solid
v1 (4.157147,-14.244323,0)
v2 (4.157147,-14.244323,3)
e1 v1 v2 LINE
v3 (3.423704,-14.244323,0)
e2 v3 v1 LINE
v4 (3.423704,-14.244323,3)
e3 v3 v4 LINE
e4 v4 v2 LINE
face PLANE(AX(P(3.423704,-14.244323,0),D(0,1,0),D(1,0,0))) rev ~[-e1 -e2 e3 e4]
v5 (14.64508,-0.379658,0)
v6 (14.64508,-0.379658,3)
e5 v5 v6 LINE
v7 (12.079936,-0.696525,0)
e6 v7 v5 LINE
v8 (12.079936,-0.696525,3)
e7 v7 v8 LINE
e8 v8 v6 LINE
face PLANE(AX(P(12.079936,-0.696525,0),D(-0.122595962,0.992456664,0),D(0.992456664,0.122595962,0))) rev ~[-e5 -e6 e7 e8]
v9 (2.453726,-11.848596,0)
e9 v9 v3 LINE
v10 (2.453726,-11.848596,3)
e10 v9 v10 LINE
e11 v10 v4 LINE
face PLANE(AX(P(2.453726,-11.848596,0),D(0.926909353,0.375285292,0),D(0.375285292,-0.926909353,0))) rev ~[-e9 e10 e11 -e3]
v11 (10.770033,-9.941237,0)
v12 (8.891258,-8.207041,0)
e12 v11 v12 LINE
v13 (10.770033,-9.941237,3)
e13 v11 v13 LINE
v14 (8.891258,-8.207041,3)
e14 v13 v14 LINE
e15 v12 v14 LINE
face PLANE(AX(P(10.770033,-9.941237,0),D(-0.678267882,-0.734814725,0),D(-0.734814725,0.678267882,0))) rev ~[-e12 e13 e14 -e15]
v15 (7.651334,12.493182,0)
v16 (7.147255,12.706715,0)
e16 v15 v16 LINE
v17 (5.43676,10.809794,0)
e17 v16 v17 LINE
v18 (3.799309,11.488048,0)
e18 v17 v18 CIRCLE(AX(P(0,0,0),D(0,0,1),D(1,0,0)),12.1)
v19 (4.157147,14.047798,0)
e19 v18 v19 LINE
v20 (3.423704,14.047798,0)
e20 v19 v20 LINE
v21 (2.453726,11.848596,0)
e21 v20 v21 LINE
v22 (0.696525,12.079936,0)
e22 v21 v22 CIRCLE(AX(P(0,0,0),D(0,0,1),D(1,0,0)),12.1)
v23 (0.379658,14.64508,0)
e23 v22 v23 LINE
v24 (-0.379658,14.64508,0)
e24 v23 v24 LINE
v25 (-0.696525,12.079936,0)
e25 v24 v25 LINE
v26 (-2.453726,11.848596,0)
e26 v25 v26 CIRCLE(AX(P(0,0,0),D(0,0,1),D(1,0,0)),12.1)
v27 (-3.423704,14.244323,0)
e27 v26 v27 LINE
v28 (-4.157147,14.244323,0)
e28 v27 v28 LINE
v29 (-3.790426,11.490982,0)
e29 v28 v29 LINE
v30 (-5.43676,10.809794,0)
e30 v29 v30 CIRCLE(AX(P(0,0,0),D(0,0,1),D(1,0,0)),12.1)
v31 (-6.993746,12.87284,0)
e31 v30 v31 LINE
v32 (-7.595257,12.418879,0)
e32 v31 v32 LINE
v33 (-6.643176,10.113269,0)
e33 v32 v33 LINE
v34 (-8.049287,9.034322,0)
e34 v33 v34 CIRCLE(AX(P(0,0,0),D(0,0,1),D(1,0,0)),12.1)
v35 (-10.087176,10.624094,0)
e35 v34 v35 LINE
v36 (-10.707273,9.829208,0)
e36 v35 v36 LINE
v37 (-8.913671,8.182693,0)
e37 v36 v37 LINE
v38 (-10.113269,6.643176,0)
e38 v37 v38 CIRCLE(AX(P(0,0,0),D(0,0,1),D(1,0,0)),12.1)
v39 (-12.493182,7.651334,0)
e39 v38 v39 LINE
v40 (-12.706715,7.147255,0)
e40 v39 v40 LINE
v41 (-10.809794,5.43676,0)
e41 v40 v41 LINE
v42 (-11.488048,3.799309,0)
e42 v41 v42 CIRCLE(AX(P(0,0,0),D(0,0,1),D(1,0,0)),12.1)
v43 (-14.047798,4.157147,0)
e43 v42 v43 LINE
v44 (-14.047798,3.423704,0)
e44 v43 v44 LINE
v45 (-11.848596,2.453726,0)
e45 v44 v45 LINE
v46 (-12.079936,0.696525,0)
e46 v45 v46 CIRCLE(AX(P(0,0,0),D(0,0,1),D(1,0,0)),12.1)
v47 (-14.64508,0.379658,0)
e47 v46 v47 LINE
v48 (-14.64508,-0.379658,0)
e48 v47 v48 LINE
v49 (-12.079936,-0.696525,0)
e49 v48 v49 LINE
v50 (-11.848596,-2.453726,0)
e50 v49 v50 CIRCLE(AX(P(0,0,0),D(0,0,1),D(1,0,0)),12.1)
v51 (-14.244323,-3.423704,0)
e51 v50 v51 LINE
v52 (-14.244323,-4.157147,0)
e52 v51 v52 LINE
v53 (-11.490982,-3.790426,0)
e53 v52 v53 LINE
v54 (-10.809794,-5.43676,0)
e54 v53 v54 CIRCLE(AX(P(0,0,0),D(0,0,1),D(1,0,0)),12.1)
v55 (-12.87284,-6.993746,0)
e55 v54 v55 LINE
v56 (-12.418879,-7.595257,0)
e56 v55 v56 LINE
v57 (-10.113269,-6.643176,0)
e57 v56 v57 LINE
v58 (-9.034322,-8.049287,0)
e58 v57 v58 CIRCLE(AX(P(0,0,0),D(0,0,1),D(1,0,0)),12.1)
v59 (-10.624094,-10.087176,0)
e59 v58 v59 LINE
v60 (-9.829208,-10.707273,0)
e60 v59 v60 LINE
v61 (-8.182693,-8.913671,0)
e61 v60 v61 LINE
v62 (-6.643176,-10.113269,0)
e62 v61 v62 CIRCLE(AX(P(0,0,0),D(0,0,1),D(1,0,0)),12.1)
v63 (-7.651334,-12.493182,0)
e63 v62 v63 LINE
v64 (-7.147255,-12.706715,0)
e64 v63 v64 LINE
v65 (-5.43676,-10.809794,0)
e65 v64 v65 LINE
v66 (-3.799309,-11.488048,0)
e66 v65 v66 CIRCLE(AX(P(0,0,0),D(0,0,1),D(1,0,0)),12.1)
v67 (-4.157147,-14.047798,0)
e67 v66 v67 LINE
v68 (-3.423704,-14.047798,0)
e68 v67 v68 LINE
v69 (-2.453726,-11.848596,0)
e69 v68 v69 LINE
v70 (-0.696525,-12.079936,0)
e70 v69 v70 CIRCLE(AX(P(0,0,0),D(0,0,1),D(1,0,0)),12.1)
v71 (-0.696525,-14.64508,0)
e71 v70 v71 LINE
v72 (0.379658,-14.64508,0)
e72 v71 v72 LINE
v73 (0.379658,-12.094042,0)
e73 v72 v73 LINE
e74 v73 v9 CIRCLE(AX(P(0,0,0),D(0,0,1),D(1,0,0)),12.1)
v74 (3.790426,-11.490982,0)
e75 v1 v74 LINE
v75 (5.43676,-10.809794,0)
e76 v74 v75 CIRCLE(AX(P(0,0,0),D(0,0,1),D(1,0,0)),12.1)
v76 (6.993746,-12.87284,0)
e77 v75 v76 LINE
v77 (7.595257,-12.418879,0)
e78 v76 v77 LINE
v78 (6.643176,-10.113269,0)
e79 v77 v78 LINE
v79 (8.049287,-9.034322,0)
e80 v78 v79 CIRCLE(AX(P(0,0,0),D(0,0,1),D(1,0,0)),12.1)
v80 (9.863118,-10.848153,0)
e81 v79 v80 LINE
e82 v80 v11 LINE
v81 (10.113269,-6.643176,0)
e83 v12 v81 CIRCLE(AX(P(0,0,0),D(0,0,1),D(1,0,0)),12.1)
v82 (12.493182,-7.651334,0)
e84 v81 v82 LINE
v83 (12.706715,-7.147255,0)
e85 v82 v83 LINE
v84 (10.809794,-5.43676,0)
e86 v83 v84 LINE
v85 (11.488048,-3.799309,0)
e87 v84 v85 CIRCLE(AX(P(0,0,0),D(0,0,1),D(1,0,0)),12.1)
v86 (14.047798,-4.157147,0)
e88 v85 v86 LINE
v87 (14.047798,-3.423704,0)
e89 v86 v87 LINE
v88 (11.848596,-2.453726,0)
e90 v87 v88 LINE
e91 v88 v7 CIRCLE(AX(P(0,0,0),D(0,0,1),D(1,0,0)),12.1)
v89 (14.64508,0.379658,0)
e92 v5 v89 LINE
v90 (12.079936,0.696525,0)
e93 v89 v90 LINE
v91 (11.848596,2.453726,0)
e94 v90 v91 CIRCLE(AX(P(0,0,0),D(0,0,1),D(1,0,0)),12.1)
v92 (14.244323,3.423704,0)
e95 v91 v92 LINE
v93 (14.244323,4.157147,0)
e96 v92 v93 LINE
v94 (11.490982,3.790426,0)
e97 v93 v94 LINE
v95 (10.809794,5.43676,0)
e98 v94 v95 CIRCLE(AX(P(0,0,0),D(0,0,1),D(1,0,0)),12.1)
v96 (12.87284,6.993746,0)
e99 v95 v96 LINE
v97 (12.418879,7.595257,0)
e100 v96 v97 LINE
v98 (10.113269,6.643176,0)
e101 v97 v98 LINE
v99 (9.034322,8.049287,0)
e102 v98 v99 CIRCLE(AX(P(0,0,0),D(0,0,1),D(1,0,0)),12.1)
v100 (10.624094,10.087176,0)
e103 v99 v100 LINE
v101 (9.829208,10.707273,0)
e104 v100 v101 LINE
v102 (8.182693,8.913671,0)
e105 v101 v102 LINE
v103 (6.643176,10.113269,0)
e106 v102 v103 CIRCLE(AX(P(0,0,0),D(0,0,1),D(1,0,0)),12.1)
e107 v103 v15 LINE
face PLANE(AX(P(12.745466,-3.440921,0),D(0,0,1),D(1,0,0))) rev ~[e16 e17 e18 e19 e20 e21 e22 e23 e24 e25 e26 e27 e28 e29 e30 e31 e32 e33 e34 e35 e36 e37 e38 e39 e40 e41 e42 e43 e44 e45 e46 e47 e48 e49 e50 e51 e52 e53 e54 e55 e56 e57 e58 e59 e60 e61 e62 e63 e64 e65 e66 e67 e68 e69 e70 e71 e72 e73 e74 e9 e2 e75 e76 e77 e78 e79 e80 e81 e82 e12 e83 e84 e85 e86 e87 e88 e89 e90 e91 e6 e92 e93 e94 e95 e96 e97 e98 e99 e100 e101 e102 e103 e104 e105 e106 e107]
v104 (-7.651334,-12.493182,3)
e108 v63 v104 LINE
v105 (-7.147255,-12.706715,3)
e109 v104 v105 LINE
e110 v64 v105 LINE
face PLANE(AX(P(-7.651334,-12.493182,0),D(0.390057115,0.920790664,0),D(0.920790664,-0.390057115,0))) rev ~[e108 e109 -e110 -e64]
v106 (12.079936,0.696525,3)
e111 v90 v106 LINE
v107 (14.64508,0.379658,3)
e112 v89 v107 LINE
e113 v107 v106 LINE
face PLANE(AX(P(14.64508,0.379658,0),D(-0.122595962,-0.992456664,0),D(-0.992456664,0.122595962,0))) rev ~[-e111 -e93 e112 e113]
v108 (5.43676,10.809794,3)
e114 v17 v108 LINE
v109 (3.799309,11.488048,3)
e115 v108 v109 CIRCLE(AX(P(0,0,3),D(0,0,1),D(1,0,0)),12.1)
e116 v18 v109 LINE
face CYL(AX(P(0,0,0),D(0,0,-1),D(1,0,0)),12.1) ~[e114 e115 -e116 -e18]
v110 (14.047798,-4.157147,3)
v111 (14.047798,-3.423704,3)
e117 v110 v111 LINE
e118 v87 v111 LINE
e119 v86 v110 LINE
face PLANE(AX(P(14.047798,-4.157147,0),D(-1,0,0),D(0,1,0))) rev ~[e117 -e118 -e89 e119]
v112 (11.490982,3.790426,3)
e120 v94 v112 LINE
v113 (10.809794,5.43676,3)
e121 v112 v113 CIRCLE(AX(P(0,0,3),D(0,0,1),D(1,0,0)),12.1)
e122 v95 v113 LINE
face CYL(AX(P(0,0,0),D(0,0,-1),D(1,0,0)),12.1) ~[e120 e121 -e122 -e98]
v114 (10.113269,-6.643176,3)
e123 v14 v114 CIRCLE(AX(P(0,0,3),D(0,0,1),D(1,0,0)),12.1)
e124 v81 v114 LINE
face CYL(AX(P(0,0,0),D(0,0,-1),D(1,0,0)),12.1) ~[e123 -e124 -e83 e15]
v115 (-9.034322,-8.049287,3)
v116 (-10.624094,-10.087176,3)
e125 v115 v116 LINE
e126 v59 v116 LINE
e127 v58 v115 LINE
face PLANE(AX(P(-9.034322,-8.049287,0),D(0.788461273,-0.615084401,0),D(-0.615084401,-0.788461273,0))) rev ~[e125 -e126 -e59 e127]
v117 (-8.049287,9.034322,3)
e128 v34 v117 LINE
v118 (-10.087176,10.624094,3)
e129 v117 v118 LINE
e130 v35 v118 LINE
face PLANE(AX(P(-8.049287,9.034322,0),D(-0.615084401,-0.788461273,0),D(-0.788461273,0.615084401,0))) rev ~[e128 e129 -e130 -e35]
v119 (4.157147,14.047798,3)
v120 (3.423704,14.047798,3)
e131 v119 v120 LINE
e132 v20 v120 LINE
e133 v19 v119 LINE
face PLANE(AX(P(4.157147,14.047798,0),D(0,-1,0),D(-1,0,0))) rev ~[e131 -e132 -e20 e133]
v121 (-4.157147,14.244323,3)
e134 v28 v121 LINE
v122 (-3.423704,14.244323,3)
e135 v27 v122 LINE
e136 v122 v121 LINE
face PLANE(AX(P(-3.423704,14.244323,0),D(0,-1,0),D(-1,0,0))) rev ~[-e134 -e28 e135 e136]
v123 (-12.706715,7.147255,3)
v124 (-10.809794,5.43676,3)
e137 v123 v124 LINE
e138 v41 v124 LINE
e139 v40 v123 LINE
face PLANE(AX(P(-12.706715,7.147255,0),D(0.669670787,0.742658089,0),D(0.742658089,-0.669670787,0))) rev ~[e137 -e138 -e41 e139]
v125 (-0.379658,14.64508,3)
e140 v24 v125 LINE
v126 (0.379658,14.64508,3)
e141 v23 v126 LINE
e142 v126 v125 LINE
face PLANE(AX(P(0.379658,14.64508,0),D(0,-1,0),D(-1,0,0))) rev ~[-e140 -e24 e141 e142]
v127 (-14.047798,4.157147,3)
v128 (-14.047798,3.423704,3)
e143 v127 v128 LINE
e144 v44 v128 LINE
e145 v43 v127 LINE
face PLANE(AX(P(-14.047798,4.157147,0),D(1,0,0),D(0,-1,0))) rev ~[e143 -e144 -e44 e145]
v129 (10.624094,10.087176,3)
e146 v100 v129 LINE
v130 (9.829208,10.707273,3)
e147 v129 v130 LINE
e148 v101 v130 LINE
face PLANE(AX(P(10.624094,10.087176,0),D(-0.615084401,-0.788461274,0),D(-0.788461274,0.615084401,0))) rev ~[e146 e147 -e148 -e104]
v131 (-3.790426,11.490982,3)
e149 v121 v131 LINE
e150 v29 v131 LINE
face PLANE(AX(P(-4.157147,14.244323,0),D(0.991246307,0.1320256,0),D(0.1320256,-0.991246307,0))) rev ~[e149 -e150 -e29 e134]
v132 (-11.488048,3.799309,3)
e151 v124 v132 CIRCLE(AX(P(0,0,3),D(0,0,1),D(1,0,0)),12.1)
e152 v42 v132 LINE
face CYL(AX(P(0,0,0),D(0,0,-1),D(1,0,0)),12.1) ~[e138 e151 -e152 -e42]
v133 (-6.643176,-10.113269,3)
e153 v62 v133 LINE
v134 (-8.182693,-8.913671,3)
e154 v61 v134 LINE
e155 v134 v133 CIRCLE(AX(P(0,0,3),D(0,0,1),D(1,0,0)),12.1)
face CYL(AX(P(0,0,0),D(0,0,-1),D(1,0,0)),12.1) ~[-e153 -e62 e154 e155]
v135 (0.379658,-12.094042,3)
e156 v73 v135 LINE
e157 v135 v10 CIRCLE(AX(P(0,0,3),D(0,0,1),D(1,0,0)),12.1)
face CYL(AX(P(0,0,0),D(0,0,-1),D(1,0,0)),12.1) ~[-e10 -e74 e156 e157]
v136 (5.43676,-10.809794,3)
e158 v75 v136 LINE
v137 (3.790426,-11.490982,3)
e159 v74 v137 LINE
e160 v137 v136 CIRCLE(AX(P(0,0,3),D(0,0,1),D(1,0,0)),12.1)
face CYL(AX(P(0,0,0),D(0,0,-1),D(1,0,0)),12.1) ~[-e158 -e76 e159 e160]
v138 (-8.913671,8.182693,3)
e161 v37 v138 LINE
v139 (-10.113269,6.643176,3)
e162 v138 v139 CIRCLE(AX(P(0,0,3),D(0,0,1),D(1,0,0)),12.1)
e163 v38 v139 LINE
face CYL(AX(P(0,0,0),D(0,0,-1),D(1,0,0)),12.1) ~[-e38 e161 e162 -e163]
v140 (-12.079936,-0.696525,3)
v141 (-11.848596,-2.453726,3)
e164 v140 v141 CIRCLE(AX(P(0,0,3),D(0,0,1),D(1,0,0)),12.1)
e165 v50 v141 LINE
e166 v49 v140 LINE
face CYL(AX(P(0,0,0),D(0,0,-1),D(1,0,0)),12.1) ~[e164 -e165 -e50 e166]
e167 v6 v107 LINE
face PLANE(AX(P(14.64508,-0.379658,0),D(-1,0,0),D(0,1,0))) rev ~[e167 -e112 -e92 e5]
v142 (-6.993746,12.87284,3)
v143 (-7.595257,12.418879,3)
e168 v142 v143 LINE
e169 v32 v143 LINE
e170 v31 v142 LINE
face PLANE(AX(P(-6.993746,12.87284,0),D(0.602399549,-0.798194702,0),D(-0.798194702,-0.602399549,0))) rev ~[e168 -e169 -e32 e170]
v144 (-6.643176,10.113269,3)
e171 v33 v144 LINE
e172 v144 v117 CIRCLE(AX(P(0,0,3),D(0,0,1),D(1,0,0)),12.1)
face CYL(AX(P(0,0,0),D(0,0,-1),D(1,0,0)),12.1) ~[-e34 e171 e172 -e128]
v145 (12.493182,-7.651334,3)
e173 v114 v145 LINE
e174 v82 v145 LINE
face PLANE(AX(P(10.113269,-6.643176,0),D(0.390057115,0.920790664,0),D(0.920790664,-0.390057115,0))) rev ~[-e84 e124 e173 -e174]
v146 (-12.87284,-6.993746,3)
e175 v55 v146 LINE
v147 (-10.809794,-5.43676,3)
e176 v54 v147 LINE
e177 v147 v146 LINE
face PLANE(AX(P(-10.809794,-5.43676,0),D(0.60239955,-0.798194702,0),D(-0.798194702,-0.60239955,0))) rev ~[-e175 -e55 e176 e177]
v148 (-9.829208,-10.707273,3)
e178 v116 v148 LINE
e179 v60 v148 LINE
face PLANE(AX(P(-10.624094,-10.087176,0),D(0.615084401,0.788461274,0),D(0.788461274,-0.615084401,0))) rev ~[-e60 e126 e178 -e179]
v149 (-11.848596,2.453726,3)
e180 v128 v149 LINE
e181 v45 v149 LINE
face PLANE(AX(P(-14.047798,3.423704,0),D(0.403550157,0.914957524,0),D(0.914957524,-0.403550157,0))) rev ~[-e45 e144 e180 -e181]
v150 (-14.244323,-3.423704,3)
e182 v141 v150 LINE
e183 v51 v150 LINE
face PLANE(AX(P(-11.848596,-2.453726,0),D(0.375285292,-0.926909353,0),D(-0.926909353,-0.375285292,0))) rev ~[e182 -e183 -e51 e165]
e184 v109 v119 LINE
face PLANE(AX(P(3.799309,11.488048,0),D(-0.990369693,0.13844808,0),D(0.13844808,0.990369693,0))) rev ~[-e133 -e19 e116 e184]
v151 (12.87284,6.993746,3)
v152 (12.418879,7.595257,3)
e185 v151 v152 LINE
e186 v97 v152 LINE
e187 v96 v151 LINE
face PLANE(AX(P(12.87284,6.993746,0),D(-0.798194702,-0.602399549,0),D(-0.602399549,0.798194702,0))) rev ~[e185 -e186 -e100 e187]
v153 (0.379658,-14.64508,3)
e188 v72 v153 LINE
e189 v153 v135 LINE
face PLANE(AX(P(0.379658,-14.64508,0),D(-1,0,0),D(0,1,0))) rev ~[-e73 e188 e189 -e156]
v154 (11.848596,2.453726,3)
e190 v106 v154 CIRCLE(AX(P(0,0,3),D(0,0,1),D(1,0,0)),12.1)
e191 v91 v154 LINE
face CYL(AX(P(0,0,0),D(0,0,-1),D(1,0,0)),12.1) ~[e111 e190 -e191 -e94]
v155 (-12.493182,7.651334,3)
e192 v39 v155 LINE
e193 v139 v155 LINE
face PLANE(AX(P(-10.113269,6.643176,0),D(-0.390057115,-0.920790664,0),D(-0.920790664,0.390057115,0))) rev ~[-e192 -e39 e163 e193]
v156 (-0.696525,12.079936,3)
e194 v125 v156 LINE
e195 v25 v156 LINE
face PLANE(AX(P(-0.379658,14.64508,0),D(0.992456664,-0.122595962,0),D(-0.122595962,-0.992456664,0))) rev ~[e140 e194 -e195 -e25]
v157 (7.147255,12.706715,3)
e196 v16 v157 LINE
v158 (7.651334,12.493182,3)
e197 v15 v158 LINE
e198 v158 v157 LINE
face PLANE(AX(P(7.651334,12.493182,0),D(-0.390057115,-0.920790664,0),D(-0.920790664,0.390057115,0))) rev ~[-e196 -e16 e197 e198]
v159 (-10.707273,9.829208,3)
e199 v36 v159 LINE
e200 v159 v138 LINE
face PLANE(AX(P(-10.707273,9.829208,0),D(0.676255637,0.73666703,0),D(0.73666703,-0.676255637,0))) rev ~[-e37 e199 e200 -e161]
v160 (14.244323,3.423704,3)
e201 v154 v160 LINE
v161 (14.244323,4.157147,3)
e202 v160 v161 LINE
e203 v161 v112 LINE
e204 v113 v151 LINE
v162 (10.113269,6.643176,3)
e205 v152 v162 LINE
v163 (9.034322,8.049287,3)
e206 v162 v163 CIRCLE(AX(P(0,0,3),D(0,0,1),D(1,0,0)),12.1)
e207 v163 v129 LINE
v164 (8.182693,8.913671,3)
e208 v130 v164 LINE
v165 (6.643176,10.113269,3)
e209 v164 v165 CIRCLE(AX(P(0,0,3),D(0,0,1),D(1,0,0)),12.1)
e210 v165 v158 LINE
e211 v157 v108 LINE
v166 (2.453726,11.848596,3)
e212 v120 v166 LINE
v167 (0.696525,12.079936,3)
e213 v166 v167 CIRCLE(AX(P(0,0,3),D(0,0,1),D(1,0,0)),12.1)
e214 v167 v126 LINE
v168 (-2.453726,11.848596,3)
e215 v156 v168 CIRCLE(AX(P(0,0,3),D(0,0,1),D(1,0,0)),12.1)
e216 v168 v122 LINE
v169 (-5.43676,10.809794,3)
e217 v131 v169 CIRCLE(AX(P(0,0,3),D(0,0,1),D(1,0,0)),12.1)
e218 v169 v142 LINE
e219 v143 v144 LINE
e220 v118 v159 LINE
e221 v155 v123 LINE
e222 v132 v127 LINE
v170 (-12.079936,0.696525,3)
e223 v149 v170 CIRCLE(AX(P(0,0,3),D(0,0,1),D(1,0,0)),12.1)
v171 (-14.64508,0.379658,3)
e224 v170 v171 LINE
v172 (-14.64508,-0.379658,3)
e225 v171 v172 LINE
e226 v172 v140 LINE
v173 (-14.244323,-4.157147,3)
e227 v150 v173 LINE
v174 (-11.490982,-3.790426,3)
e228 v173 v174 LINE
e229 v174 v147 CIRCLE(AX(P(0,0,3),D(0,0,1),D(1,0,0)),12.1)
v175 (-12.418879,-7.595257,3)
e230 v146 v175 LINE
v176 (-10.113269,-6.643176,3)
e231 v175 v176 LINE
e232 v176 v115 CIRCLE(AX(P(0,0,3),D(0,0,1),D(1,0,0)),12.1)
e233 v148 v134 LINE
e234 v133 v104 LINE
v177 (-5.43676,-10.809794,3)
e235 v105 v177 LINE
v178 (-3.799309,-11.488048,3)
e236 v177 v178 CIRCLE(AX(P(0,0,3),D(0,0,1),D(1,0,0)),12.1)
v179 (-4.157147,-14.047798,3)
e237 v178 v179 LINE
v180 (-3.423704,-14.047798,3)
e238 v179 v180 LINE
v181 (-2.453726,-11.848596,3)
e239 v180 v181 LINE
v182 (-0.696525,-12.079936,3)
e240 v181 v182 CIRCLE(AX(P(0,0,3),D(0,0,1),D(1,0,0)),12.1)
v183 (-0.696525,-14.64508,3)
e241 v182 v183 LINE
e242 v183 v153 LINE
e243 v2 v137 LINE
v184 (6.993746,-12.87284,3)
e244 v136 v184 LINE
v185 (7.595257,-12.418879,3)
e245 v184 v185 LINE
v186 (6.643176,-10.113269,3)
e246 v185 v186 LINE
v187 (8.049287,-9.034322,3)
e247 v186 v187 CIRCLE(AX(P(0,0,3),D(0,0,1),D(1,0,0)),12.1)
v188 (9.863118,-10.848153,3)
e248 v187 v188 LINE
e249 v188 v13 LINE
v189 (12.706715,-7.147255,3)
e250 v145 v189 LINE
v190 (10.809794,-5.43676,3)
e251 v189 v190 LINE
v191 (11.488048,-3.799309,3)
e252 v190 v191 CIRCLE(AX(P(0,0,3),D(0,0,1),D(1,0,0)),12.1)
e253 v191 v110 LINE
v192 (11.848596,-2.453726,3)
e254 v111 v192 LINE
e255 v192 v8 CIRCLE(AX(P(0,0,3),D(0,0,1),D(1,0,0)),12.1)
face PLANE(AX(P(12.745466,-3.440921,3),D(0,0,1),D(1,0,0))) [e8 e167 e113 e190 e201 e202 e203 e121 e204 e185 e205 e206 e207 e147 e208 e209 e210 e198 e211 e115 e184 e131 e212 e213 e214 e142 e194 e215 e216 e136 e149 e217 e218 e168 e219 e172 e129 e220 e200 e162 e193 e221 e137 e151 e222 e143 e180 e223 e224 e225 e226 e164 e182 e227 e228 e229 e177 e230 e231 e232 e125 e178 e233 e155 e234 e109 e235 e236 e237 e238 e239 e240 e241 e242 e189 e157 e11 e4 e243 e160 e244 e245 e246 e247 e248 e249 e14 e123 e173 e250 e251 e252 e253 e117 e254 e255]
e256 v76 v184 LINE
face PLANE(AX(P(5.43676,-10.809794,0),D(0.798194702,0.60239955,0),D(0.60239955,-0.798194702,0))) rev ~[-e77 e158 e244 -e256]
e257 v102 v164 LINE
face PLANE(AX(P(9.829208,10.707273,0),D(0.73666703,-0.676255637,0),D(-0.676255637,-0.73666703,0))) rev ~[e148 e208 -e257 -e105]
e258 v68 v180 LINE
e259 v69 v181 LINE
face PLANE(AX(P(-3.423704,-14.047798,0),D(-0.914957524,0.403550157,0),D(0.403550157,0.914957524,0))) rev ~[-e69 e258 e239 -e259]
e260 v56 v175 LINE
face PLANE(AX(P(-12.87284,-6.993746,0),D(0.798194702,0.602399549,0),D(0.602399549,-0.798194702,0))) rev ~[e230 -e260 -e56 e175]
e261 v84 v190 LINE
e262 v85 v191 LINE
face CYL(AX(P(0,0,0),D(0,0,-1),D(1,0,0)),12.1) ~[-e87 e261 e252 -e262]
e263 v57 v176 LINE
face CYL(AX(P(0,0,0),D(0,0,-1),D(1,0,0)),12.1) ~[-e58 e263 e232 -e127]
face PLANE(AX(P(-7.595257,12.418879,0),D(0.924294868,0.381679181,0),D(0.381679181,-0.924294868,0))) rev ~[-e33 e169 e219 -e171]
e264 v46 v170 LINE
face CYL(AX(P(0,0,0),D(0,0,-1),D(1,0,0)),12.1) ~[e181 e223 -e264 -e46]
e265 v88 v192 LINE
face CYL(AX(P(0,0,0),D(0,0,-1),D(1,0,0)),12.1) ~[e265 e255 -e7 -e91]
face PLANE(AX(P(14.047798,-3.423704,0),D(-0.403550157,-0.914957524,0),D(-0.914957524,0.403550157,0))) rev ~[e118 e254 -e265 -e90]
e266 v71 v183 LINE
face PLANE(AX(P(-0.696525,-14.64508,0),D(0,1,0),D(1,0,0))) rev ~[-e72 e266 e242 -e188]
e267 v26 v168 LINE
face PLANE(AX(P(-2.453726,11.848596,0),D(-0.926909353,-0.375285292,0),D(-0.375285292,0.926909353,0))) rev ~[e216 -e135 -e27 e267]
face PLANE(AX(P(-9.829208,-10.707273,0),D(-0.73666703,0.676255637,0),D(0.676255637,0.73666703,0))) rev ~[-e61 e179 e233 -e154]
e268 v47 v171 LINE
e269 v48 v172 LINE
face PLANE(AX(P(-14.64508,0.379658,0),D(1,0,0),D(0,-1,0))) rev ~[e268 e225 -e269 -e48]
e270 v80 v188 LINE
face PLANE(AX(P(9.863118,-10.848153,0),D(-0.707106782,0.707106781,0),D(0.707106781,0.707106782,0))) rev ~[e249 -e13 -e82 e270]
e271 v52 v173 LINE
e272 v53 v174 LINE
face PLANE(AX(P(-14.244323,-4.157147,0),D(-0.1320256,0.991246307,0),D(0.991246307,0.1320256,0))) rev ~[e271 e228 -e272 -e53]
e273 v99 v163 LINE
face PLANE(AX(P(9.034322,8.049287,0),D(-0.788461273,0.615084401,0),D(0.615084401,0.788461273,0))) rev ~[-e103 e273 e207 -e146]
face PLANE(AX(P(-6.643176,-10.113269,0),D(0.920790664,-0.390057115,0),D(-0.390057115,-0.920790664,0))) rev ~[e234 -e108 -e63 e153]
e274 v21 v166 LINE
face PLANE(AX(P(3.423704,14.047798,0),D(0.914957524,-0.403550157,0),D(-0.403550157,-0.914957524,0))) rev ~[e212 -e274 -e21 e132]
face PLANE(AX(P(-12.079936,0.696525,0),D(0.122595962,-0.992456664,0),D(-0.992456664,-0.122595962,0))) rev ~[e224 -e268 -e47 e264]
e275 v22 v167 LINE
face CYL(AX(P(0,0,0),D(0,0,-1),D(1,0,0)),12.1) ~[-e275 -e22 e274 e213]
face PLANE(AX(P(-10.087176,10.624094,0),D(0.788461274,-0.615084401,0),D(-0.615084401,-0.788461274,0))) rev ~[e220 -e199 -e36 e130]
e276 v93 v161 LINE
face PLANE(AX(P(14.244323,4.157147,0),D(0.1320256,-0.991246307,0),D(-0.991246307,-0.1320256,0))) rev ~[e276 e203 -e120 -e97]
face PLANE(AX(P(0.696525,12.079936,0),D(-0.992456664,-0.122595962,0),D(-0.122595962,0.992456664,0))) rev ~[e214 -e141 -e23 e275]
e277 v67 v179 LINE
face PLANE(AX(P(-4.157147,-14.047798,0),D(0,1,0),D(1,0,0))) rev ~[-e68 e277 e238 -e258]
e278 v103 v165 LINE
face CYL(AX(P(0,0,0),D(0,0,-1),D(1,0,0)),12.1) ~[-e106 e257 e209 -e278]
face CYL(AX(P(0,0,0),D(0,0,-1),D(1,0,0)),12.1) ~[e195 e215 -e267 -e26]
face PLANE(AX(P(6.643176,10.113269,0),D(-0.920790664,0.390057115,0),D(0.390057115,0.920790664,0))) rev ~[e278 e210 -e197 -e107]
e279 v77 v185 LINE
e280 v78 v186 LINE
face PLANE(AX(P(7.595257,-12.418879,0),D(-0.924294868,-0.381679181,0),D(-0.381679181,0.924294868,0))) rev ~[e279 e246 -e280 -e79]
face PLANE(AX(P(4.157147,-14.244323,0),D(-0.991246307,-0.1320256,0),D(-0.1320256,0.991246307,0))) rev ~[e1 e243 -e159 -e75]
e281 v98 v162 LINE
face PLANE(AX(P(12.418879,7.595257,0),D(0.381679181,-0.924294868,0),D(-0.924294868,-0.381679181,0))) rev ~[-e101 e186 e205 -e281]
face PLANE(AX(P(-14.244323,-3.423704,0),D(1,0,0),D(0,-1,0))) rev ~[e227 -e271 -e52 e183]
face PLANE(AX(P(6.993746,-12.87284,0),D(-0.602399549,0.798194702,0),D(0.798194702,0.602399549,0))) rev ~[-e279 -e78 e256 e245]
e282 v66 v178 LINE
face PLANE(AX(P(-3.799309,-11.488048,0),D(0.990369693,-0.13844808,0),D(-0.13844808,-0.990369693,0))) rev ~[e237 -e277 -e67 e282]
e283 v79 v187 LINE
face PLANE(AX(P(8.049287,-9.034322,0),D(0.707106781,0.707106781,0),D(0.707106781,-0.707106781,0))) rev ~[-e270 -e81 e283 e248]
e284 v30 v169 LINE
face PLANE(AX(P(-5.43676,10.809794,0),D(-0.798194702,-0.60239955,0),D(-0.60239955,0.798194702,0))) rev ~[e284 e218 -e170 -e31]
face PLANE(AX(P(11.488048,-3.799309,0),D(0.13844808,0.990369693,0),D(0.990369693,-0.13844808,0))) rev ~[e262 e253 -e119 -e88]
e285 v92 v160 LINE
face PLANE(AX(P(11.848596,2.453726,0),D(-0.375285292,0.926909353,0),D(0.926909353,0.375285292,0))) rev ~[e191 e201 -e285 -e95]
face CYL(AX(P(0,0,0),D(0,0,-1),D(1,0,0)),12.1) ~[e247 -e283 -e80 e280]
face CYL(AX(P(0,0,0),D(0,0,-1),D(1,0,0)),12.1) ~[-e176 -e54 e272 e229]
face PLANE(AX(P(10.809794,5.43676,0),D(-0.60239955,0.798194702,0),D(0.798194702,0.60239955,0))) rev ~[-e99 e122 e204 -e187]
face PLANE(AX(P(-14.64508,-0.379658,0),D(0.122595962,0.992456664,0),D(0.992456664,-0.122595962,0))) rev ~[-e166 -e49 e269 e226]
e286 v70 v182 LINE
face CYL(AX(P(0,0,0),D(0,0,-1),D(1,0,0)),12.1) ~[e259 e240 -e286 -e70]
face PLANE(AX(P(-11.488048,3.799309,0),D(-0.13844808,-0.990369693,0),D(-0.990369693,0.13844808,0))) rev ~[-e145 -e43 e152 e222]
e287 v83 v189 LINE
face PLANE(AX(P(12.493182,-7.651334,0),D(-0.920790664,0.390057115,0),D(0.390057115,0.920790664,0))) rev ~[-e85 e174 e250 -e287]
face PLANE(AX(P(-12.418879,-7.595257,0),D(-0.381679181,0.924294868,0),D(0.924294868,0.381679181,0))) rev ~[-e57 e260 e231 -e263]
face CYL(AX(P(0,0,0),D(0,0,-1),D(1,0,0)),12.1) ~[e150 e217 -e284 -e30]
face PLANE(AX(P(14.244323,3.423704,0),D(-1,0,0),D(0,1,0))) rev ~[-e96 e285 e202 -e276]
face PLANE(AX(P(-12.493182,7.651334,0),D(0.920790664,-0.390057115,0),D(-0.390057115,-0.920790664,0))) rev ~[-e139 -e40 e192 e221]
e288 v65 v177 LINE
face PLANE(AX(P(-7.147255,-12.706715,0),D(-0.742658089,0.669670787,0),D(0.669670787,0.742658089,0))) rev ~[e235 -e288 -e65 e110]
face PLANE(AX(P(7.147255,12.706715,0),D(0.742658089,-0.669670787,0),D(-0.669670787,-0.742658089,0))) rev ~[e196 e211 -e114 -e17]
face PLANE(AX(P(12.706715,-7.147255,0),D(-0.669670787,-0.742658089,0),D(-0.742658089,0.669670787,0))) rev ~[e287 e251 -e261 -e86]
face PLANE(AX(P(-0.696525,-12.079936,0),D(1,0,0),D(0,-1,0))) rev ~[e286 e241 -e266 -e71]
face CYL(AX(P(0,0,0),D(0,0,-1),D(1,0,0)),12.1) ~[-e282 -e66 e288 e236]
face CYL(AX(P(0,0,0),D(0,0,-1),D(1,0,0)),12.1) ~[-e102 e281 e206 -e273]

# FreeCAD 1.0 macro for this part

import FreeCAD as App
import Part
import Sketcher
from FreeCAD import Vector
Q = App.Units.Quantity


def add_polygon(sketch, points):
    """Adds a closed chain of lines whose ends are joined by coincident constraints."""
    first, n = sketch.GeometryCount, len(points)
    for a, b in zip(points, points[1:] + points[:1]):
        sketch.addGeometry(Part.LineSegment(App.Vector(*a, 0), App.Vector(*b, 0)), False)
    for i in range(n):
        sketch.addConstraint(Sketcher.Constraint("Coincident", first + i, 2, first + (i + 1) % n, 1))

doc = App.newDocument("Part")
params = doc.addObject("Spreadsheet::Sheet", "Params")
for row, (alias, value) in enumerate([
    ("sketch1_diameter", "24.2 mm"),
    ("pad1_length", "3 mm"),
    ("pad2_length", "3 mm"),
    ("pad3_length", "3 mm"),
    ("pad4_length", "3 mm"),
    ("pad5_length", "3 mm"),
    ("pad6_length", "3 mm"),
    ("pad7_length", "3 mm"),
    ("pad8_length", "3 mm"),
    ("pad9_length", "3 mm"),
    ("pad10_length", "3 mm"),
    ("pad11_length", "3 mm"),
    ("pad12_length", "3 mm"),
    ("pad13_length", "3 mm"),
    ("pad14_length", "3 mm"),
    ("pad15_length", "3 mm"),
    ("pad16_length", "3 mm"),
    ("pad17_length", "3 mm"),
    ("pad18_length", "3 mm"),
    ("pad19_length", "3 mm"),
    ("pad20_length", "3 mm"),
    ("pad21_length", "3 mm"),
    ("pad22_length", "3 mm"),
    ("pad23_length", "3 mm"),
    ("pad24_length", "3 mm"),
    ("pad25_length", "3 mm"),
], start=1):
    params.set(f"A{row}", alias)
    params.set(f"B{row}", "=" + value)
    params.setAlias(f"B{row}", alias)

body = doc.addObject("PartDesign::Body", "Body")

# Sketch on XY plane
sketch1 = body.newObject("Sketcher::SketchObject", "Sketch")
sketch1.AttachmentSupport = (doc.getObject("XY_Plane"), [""])
sketch1.MapMode = "FlatFace"
sketch1.addGeometry(Part.Circle(Vector(0, 0, 0), Vector(0, 0, 1), 12), False)
sketch1.addConstraint(Sketcher.Constraint("Coincident", 0, 3, -1, 1))
sketch1.addConstraint(Sketcher.Constraint("Diameter", 0, 24.2))
sketch1.setExpression("Constraints[1]", "Params.sketch1_diameter")
pad1 = body.newObject("PartDesign::Pad", "Pad")
pad1.Profile = sketch1
pad1.setExpression("Length", "Params.pad1_length")

# Sketch on XY plane
sketch2 = body.newObject("Sketcher::SketchObject", "Sketch001")
sketch2.AttachmentSupport = (doc.getObject("XY_Plane"), [""])
sketch2.MapMode = "FlatFace"
add_polygon(sketch2, [(12.1, -0.7), (14.6, -0.4), (14.6, 0.4), (12.1, 0.7)])  # lines 0-3
sketch2.addConstraint(Sketcher.Constraint("Vertical", 1))
sketch2.addConstraint(Sketcher.Constraint("Vertical", 3))
sketch2.addConstraint(Sketcher.Constraint("Equal", 0, 2))
sketch2.addConstraint(Sketcher.Constraint("DistanceY", 3, 2, 3, 1, 1.393049))
sketch2.addConstraint(Sketcher.Constraint("Distance", 0, 2.584641))
sketch2.addConstraint(Sketcher.Constraint("DistanceY", 1, 1, 1, 2, 0.759316))
sketch2.addConstraint(Sketcher.Constraint("DistanceX", -1, 1, 0, 2, 14.64508))
sketch2.addConstraint(Sketcher.Constraint("DistanceY", 0, 2, -1, 1, 0.379658))
pad2 = body.newObject("PartDesign::Pad", "Pad001")
pad2.Profile = sketch2
pad2.setExpression("Length", "Params.pad2_length")

# Sketch on XY plane
sketch3 = body.newObject("Sketcher::SketchObject", "Sketch002")
sketch3.AttachmentSupport = (doc.getObject("XY_Plane"), [""])
sketch3.MapMode = "FlatFace"
add_polygon(sketch3, [(11.8, 2.5), (14.2, 3.4), (14.2, 4.2), (11.5, 3.8)])  # lines 0-3
sketch3.addConstraint(Sketcher.Constraint("Vertical", 1))
sketch3.addConstraint(Sketcher.Constraint("DistanceY", 3, 2, 2, 2, 1.336699))
sketch3.addConstraint(Sketcher.Constraint("Distance", 0, 2.584641))
sketch3.addConstraint(Sketcher.Constraint("Distance", 3, 1.38371))
sketch3.addConstraint(Sketcher.Constraint("DistanceY", 1, 1, 1, 2, 0.733443))
sketch3.addConstraint(Sketcher.Constraint("DistanceX", 2, 2, 0, 2, 2.753341))
sketch3.addConstraint(Sketcher.Constraint("DistanceX", -1, 1, 0, 2, 14.244323))
sketch3.addConstraint(Sketcher.Constraint("DistanceY", -1, 1, 0, 2, 3.423704))
pad3 = body.newObject("PartDesign::Pad", "Pad002")
pad3.Profile = sketch3
pad3.setExpression("Length", "Params.pad3_length")

# Sketch on XY plane
sketch4 = body.newObject("Sketcher::SketchObject", "Sketch003")
sketch4.AttachmentSupport = (doc.getObject("XY_Plane"), [""])
sketch4.MapMode = "FlatFace"
add_polygon(sketch4, [(10.8, 5.4), (12.9, 7), (12.4, 7.6), (10.1, 6.6)])  # lines 0-3
sketch4.addConstraint(Sketcher.Constraint("Perpendicular", 0, 1))
sketch4.addConstraint(Sketcher.Constraint("Angle", 3, Q("-60 deg")))
sketch4.addConstraint(Sketcher.Constraint("Distance", 0, 2.584641))
sketch4.addConstraint(Sketcher.Constraint("Distance", 1, 0.753589))
sketch4.addConstraint(Sketcher.Constraint("Distance", 3, 1.393049))
sketch4.addConstraint(Sketcher.Constraint("DistanceX", -1, 1, 0, 2, 12.87284))
sketch4.addConstraint(Sketcher.Constraint("DistanceX", -1, 1, 1, 2, 12.418879))
sketch4.addConstraint(Sketcher.Constraint("DistanceY", -1, 1, 3, 2, 5.43676))
pad4 = body.newObject("PartDesign::Pad", "Pad003")
pad4.Profile = sketch4
pad4.setExpression("Length", "Params.pad4_length")

# Sketch on XY plane
sketch5 = body.newObject("Sketcher::SketchObject", "Sketch004")
sketch5.AttachmentSupport = (doc.getObject("XY_Plane"), [""])
sketch5.MapMode = "FlatFace"
add_polygon(sketch5, [(9, 8), (10.6, 10.1), (9.8, 10.7), (8.2, 8.9)])  # lines 0-3
sketch5.addConstraint(Sketcher.Constraint("Perpendicular", 0, 1))
sketch5.addConstraint(Sketcher.Constraint("DistanceY", 2, 2, 1, 2, 1.793602))
sketch5.addConstraint(Sketcher.Constraint("DistanceX", 2, 2, 0, 2, 2.441401))
sketch5.addConstraint(Sketcher.Constraint("Distance", 0, 2.584641))
sketch5.addConstraint(Sketcher.Constraint("Distance", 1, 1.008148))
sketch5.addConstraint(Sketcher.Constraint("DistanceX", -1, 1, 1, 2, 9.829208))
sketch5.addConstraint(Sketcher.Constraint("DistanceY", -1, 1, 2, 2, 8.913671))
sketch5.addConstraint(Sketcher.Constraint("DistanceX", 2, 2, 3, 2, 0.851629))
pad5 = body.newObject("PartDesign::Pad", "Pad004")
pad5.Profile = sketch5
pad5.setExpression("Length", "Params.pad5_length")

# Sketch on XY plane
sketch6 = body.newObject("Sketcher::SketchObject", "Sketch005")
sketch6.AttachmentSupport = (doc.getObject("XY_Plane"), [""])
sketch6.MapMode = "FlatFace"
add_polygon(sketch6, [(6.6, 10.1), (7.7, 12.5), (7.1, 12.7), (5.4, 10.8)])  # lines 0-3
sketch6.addConstraint(Sketcher.Constraint("Perpendicular", 0, 1))
sketch6.addConstraint(Sketcher.Constraint("Angle", 3, Q("-30 deg")))
sketch6.addConstraint(Sketcher.Constraint("Distance", 0, 2.584641))
sketch6.addConstraint(Sketcher.Constraint("Distance", 1, 0.547441))
sketch6.addConstraint(Sketcher.Constraint("Distance", 3, 1.393049))
sketch6.addConstraint(Sketcher.Constraint("DistanceY", -1, 1, 0, 2, 12.493182))
sketch6.addConstraint(Sketcher.Constraint("DistanceX", -1, 1, 2, 2, 5.43676))
sketch6.addConstraint(Sketcher.Constraint("DistanceY", -1, 1, 3, 2, 10.113269))
pad6 = body.newObject("PartDesign::Pad", "Pad005")
pad6.Profile = sketch6
pad6.setExpression("Length", "Params.pad6_length")

# Sketch on XY plane
sketch7 = body.newObject("Sketcher::SketchObject", "Sketch006")
sketch7.AttachmentSupport = (doc.getObject("XY_Plane"), [""])
sketch7.MapMode = "FlatFace"
add_polygon(sketch7, [(3.8, 11.5), (4.2, 14), (3.4, 14), (2.5, 11.8)])  # lines 0-3
sketch7.addConstraint(Sketcher.Constraint("Horizontal", 1))
sketch7.addConstraint(Sketcher.Constraint("Angle", 3, Q("-15 deg")))
sketch7.addConstraint(Sketcher.Constraint("DistanceY", 2, 2, 1, 2, 2.199202))
sketch7.addConstraint(Sketcher.Constraint("Distance", 0, 2.584641))
sketch7.addConstraint(Sketcher.Constraint("Distance", 2, 2.403611))
sketch7.addConstraint(Sketcher.Constraint("Distance", 3, 1.393049))
sketch7.addConstraint(Sketcher.Constraint("DistanceX", -1, 1, 3, 2, 3.799309))
sketch7.addConstraint(Sketcher.Constraint("DistanceY", -1, 1, 3, 2, 11.488048))
pad7 = body.newObject("PartDesign::Pad", "Pad006")
pad7.Profile = sketch7
pad7.setExpression("Length", "Params.pad7_length")

# Sketch on XY plane
sketch8 = body.newObject("Sketcher::SketchObject", "Sketch007")
sketch8.AttachmentSupport = (doc.getObject("XY_Plane"), [""])
sketch8.MapMode = "FlatFace"
add_polygon(sketch8, [(0.7, 12.1), (0.4, 14.6), (-0.4, 14.6), (-0.7, 12.1)])  # lines 0-3
sketch8.addConstraint(Sketcher.Constraint("Horizontal", 1))
sketch8.addConstraint(Sketcher.Constraint("Horizontal", 3))
sketch8.addConstraint(Sketcher.Constraint("Equal", 0, 2))
sketch8.addConstraint(Sketcher.Constraint("DistanceX", 3, 1, 3, 2, 1.393049))
sketch8.addConstraint(Sketcher.Constraint("Distance", 0, 2.584641))
sketch8.addConstraint(Sketcher.Constraint("DistanceX", 1, 2, 1, 1, 0.759316))
sketch8.addConstraint(Sketcher.Constraint("DistanceX", -1, 1, 0, 2, 0.379658))
sketch8.addConstraint(Sketcher.Constraint("DistanceY", -1, 1, 0, 2, 14.64508))
pad8 = body.newObject("PartDesign::Pad", "Pad007")
pad8.Profile = sketch8
pad8.setExpression("Length", "Params.pad8_length")

# Sketch on XY plane
sketch9 = body.newObject("Sketcher::SketchObject", "Sketch008")
sketch9.AttachmentSupport = (doc.getObject("XY_Plane"), [""])
sketch9.MapMode = "FlatFace"
add_polygon(sketch9, [(-2.5, 11.8), (-3.4, 14.2), (-4.2, 14.2), (-3.8, 11.5)])  # lines 0-3
sketch9.addConstraint(Sketcher.Constraint("Horizontal", 1))
sketch9.addConstraint(Sketcher.Constraint("DistanceX", 2, 2, 3, 2, 1.336699))
sketch9.addConstraint(Sketcher.Constraint("Distance", 0, 2.584641))
sketch9.addConstraint(Sketcher.Constraint("Distance", 3, 1.38371))
sketch9.addConstraint(Sketcher.Constraint("DistanceX", 1, 2, 1, 1, 0.733443))
sketch9.addConstraint(Sketcher.Constraint("DistanceX", 2, 2, 0, 2, 0.366722))
sketch9.addConstraint(Sketcher.Constraint("DistanceX", 0, 2, -1, 1, 3.423704))
sketch9.addConstraint(Sketcher.Constraint("DistanceY", -1, 1, 0, 2, 14.244323))
pad9 = body.newObject("PartDesign::Pad", "Pad008")
pad9.Profile = sketch9
pad9.setExpression("Length", "Params.pad9_length")

# Sketch on XY plane
sketch10 = body.newObject("Sketcher::SketchObject", "Sketch009")
sketch10.AttachmentSupport = (doc.getObject("XY_Plane"), [""])
sketch10.MapMode = "FlatFace"
add_polygon(sketch10, [(-5.4, 10.8), (-7, 12.9), (-7.6, 12.4), (-6.6, 10.1)])  # lines 0-3
sketch10.addConstraint(Sketcher.Constraint("Perpendicular", 0, 1))
sketch10.addConstraint(Sketcher.Constraint("Angle", 3, Q("30 deg")))
sketch10.addConstraint(Sketcher.Constraint("Distance", 0, 2.584641))
sketch10.addConstraint(Sketcher.Constraint("Distance", 1, 0.753589))
sketch10.addConstraint(Sketcher.Constraint("Distance", 3, 1.393049))
sketch10.addConstraint(Sketcher.Constraint("DistanceY", -1, 1, 0, 2, 12.87284))
sketch10.addConstraint(Sketcher.Constraint("DistanceY", -1, 1, 1, 2, 12.418879))
sketch10.addConstraint(Sketcher.Constraint("DistanceX", 3, 2, -1, 1, 5.43676))
pad10 = body.newObject("PartDesign::Pad", "Pad009")
pad10.Profile = sketch10
pad10.setExpression("Length", "Params.pad10_length")

# Sketch on XY plane
sketch11 = body.newObject("Sketcher::SketchObject", "Sketch010")
sketch11.AttachmentSupport = (doc.getObject("XY_Plane"), [""])
sketch11.MapMode = "FlatFace"
add_polygon(sketch11, [(-8, 9), (-10.1, 10.6), (-10.7, 9.8), (-8.9, 8.2)])  # lines 0-3
sketch11.addConstraint(Sketcher.Constraint("Perpendicular", 0, 1))
sketch11.addConstraint(Sketcher.Constraint("DistanceX", 1, 2, 2, 2, 1.793602))
sketch11.addConstraint(Sketcher.Constraint("DistanceY", 2, 2, 0, 2, 2.441401))
sketch11.addConstraint(Sketcher.Constraint("Distance", 0, 2.584641))
sketch11.addConstraint(Sketcher.Constraint("Distance", 1, 1.008148))
sketch11.addConstraint(Sketcher.Constraint("DistanceY", -1, 1, 1, 2, 9.829208))
sketch11.addConstraint(Sketcher.Constraint("DistanceX", 2, 2, -1, 1, 8.913671))
sketch11.addConstraint(Sketcher.Constraint("DistanceY", 2, 2, 3, 2, 0.851629))
pad11 = body.newObject("PartDesign::Pad", "Pad010")
pad11.Profile = sketch11
pad11.setExpression("Length", "Params.pad11_length")

# Sketch on XY plane
sketch12 = body.newObject("Sketcher::SketchObject", "Sketch011")
sketch12.AttachmentSupport = (doc.getObject("XY_Plane"), [""])
sketch12.MapMode = "FlatFace"
add_polygon(sketch12, [(-10.1, 6.6), (-12.5, 7.7), (-12.7, 7.1), (-10.8, 5.4)])  # lines 0-3
sketch12.addConstraint(Sketcher.Constraint("Perpendicular", 0, 1))
sketch12.addConstraint(Sketcher.Constraint("Angle", 3, Q("60 deg")))
sketch12.addConstraint(Sketcher.Constraint("Distance", 0, 2.584641))
sketch12.addConstraint(Sketcher.Constraint("Distance", 1, 0.547441))
sketch12.addConstraint(Sketcher.Constraint("Distance", 3, 1.393049))
sketch12.addConstraint(Sketcher.Constraint("DistanceX", 0, 2, -1, 1, 12.493182))
sketch12.addConstraint(Sketcher.Constraint("DistanceY", -1, 1, 2, 2, 5.43676))
sketch12.addConstraint(Sketcher.Constraint("DistanceX", 3, 2, -1, 1, 10.113269))
pad12 = body.newObject("PartDesign::Pad", "Pad011")
pad12.Profile = sketch12
pad12.setExpression("Length", "Params.pad12_length")

# Sketch on XY plane
sketch13 = body.newObject("Sketcher::SketchObject", "Sketch012")
sketch13.AttachmentSupport = (doc.getObject("XY_Plane"), [""])
sketch13.MapMode = "FlatFace"
add_polygon(sketch13, [(-11.5, 3.8), (-14, 4.2), (-14, 3.4), (-11.8, 2.5)])  # lines 0-3
sketch13.addConstraint(Sketcher.Constraint("Vertical", 1))
sketch13.addConstraint(Sketcher.Constraint("Angle", 3, Q("75 deg")))
sketch13.addConstraint(Sketcher.Constraint("DistanceX", 1, 2, 2, 2, 2.199202))
sketch13.addConstraint(Sketcher.Constraint("Distance", 0, 2.584641))
sketch13.addConstraint(Sketcher.Constraint("Distance", 2, 2.403611))
sketch13.addConstraint(Sketcher.Constraint("Distance", 3, 1.393049))
sketch13.addConstraint(Sketcher.Constraint("DistanceX", 3, 2, -1, 1, 11.488048))
sketch13.addConstraint(Sketcher.Constraint("DistanceY", -1, 1, 3, 2, 3.799309))
pad13 = body.newObject("PartDesign::Pad", "Pad012")
pad13.Profile = sketch13
pad13.setExpression("Length", "Params.pad13_length")

# Sketch on XY plane
sketch14 = body.newObject("Sketcher::SketchObject", "Sketch013")
sketch14.AttachmentSupport = (doc.getObject("XY_Plane"), [""])
sketch14.MapMode = "FlatFace"
add_polygon(sketch14, [(-12.1, 0.7), (-14.6, 0.4), (-14.6, -0.4), (-12.1, -0.7)])  # lines 0-3
sketch14.addConstraint(Sketcher.Constraint("Vertical", 1))
sketch14.addConstraint(Sketcher.Constraint("Vertical", 3))
sketch14.addConstraint(Sketcher.Constraint("Equal", 0, 2))
sketch14.addConstraint(Sketcher.Constraint("DistanceY", 3, 1, 3, 2, 1.393049))
sketch14.addConstraint(Sketcher.Constraint("Distance", 0, 2.584641))
sketch14.addConstraint(Sketcher.Constraint("DistanceY", 1, 2, 1, 1, 0.759316))
sketch14.addConstraint(Sketcher.Constraint("DistanceX", 0, 2, -1, 1, 14.64508))
sketch14.addConstraint(Sketcher.Constraint("DistanceY", -1, 1, 0, 2, 0.379658))
pad14 = body.newObject("PartDesign::Pad", "Pad013")
pad14.Profile = sketch14
pad14.setExpression("Length", "Params.pad14_length")

# Sketch on XY plane
sketch15 = body.newObject("Sketcher::SketchObject", "Sketch014")
sketch15.AttachmentSupport = (doc.getObject("XY_Plane"), [""])
sketch15.MapMode = "FlatFace"
add_polygon(sketch15, [(-11.8, -2.5), (-14.2, -3.4), (-14.2, -4.2), (-11.5, -3.8)])  # lines 0-3
sketch15.addConstraint(Sketcher.Constraint("Vertical", 1))
sketch15.addConstraint(Sketcher.Constraint("DistanceY", 2, 2, 3, 2, 1.336699))
sketch15.addConstraint(Sketcher.Constraint("Distance", 0, 2.584641))
sketch15.addConstraint(Sketcher.Constraint("Distance", 3, 1.38371))
sketch15.addConstraint(Sketcher.Constraint("DistanceY", 1, 2, 1, 1, 0.733443))
sketch15.addConstraint(Sketcher.Constraint("DistanceX", 0, 2, 2, 2, 2.753341))
sketch15.addConstraint(Sketcher.Constraint("DistanceX", 0, 2, -1, 1, 14.244323))
sketch15.addConstraint(Sketcher.Constraint("DistanceY", 0, 2, -1, 1, 3.423704))
pad15 = body.newObject("PartDesign::Pad", "Pad014")
pad15.Profile = sketch15
pad15.setExpression("Length", "Params.pad15_length")

# Sketch on XY plane
sketch16 = body.newObject("Sketcher::SketchObject", "Sketch015")
sketch16.AttachmentSupport = (doc.getObject("XY_Plane"), [""])
sketch16.MapMode = "FlatFace"
add_polygon(sketch16, [(-10.8, -5.4), (-12.9, -7), (-12.4, -7.6), (-10.1, -6.6)])  # lines 0-3
sketch16.addConstraint(Sketcher.Constraint("Perpendicular", 0, 1))
sketch16.addConstraint(Sketcher.Constraint("Angle", 3, Q("120 deg")))
sketch16.addConstraint(Sketcher.Constraint("Distance", 0, 2.584641))
sketch16.addConstraint(Sketcher.Constraint("Distance", 1, 0.753589))
sketch16.addConstraint(Sketcher.Constraint("Distance", 3, 1.393049))
sketch16.addConstraint(Sketcher.Constraint("DistanceX", 0, 2, -1, 1, 12.87284))
sketch16.addConstraint(Sketcher.Constraint("DistanceX", 1, 2, -1, 1, 12.418879))
sketch16.addConstraint(Sketcher.Constraint("DistanceY", 3, 2, -1, 1, 5.43676))
pad16 = body.newObject("PartDesign::Pad", "Pad015")
pad16.Profile = sketch16
pad16.setExpression("Length", "Params.pad16_length")

# Sketch on XY plane
sketch17 = body.newObject("Sketcher::SketchObject", "Sketch016")
sketch17.AttachmentSupport = (doc.getObject("XY_Plane"), [""])
sketch17.MapMode = "FlatFace"
add_polygon(sketch17, [(-9, -8), (-10.6, -10.1), (-9.8, -10.7), (-8.2, -8.9)])  # lines 0-3
sketch17.addConstraint(Sketcher.Constraint("Perpendicular", 0, 1))
sketch17.addConstraint(Sketcher.Constraint("DistanceY", 1, 2, 2, 2, 1.793602))
sketch17.addConstraint(Sketcher.Constraint("DistanceX", 0, 2, 2, 2, 2.441401))
sketch17.addConstraint(Sketcher.Constraint("Distance", 0, 2.584641))
sketch17.addConstraint(Sketcher.Constraint("Distance", 1, 1.008148))
sketch17.addConstraint(Sketcher.Constraint("DistanceX", 1, 2, -1, 1, 9.829208))
sketch17.addConstraint(Sketcher.Constraint("DistanceY", 2, 2, -1, 1, 8.913671))
sketch17.addConstraint(Sketcher.Constraint("DistanceX", 3, 2, 2, 2, 0.851629))
pad17 = body.newObject("PartDesign::Pad", "Pad016")
pad17.Profile = sketch17
pad17.setExpression("Length", "Params.pad17_length")

# Sketch on XY plane
sketch18 = body.newObject("Sketcher::SketchObject", "Sketch017")
sketch18.AttachmentSupport = (doc.getObject("XY_Plane"), [""])
sketch18.MapMode = "FlatFace"
add_polygon(sketch18, [(-6.6, -10.1), (-7.7, -12.5), (-7.1, -12.7), (-5.4, -10.8)])  # lines 0-3
sketch18.addConstraint(Sketcher.Constraint("Perpendicular", 0, 1))
sketch18.addConstraint(Sketcher.Constraint("Angle", 3, Q("150 deg")))
sketch18.addConstraint(Sketcher.Constraint("Distance", 0, 2.584641))
sketch18.addConstraint(Sketcher.Constraint("Distance", 1, 0.547441))
sketch18.addConstraint(Sketcher.Constraint("Distance", 3, 1.393049))
sketch18.addConstraint(Sketcher.Constraint("DistanceY", 0, 2, -1, 1, 12.493182))
sketch18.addConstraint(Sketcher.Constraint("DistanceX", 2, 2, -1, 1, 5.43676))
sketch18.addConstraint(Sketcher.Constraint("DistanceY", 3, 2, -1, 1, 10.113269))
pad18 = body.newObject("PartDesign::Pad", "Pad017")
pad18.Profile = sketch18
pad18.setExpression("Length", "Params.pad18_length")

# Sketch on XY plane
sketch19 = body.newObject("Sketcher::SketchObject", "Sketch018")
sketch19.AttachmentSupport = (doc.getObject("XY_Plane"), [""])
sketch19.MapMode = "FlatFace"
add_polygon(sketch19, [(-3.8, -11.5), (-4.2, -14), (-3.4, -14), (-2.5, -11.8)])  # lines 0-3
sketch19.addConstraint(Sketcher.Constraint("Horizontal", 1))
sketch19.addConstraint(Sketcher.Constraint("Angle", 3, Q("165 deg")))
sketch19.addConstraint(Sketcher.Constraint("DistanceY", 1, 2, 2, 2, 2.199202))
sketch19.addConstraint(Sketcher.Constraint("Distance", 0, 2.584641))
sketch19.addConstraint(Sketcher.Constraint("Distance", 2, 2.403611))
sketch19.addConstraint(Sketcher.Constraint("Distance", 3, 1.393049))
sketch19.addConstraint(Sketcher.Constraint("DistanceX", 3, 2, -1, 1, 3.799309))
sketch19.addConstraint(Sketcher.Constraint("DistanceY", 3, 2, -1, 1, 11.488048))
pad19 = body.newObject("PartDesign::Pad", "Pad018")
pad19.Profile = sketch19
pad19.setExpression("Length", "Params.pad19_length")

# Sketch on XY plane
sketch20 = body.newObject("Sketcher::SketchObject", "Sketch019")
sketch20.AttachmentSupport = (doc.getObject("XY_Plane"), [""])
sketch20.MapMode = "FlatFace"
add_polygon(sketch20, [(-0.7, -12.1), (-0.7, -14.6), (0.4, -14.6), (0.4, -12.1)])  # lines 0-3
sketch20.addConstraint(Sketcher.Constraint("Vertical", 0))
sketch20.addConstraint(Sketcher.Constraint("Horizontal", 1))
sketch20.addConstraint(Sketcher.Constraint("Vertical", 2))
sketch20.addConstraint(Sketcher.Constraint("DistanceX", 1, 1, 1, 2, 1.076183))
sketch20.addConstraint(Sketcher.Constraint("DistanceY", 0, 2, 0, 1, 2.565144))
sketch20.addConstraint(Sketcher.Constraint("DistanceY", 2, 1, 2, 2, 2.551037))
sketch20.addConstraint(Sketcher.Constraint("DistanceY", 0, 2, -1, 1, 14.64508))
sketch20.addConstraint(Sketcher.Constraint("DistanceX", -1, 1, 1, 2, 0.379658))
pad20 = body.newObject("PartDesign::Pad", "Pad019")
pad20.Profile = sketch20
pad20.setExpression("Length", "Params.pad20_length")

# Sketch on XY plane
sketch21 = body.newObject("Sketcher::SketchObject", "Sketch020")
sketch21.AttachmentSupport = (doc.getObject("XY_Plane"), [""])
sketch21.MapMode = "FlatFace"
add_polygon(sketch21, [(2.5, -11.8), (3.4, -14.2), (4.2, -14.2), (3.8, -11.5)])  # lines 0-3
sketch21.addConstraint(Sketcher.Constraint("Horizontal", 1))
sketch21.addConstraint(Sketcher.Constraint("DistanceX", 3, 2, 2, 2, 1.336699))
sketch21.addConstraint(Sketcher.Constraint("Distance", 0, 2.584641))
sketch21.addConstraint(Sketcher.Constraint("Distance", 3, 1.38371))
sketch21.addConstraint(Sketcher.Constraint("DistanceX", 1, 1, 1, 2, 0.733443))
sketch21.addConstraint(Sketcher.Constraint("DistanceX", 0, 2, 2, 2, 0.366722))
sketch21.addConstraint(Sketcher.Constraint("DistanceX", -1, 1, 0, 2, 3.423704))
sketch21.addConstraint(Sketcher.Constraint("DistanceY", 0, 2, -1, 1, 14.244323))
pad21 = body.newObject("PartDesign::Pad", "Pad020")
pad21.Profile = sketch21
pad21.setExpression("Length", "Params.pad21_length")

# Sketch on XY plane
sketch22 = body.newObject("Sketcher::SketchObject", "Sketch021")
sketch22.AttachmentSupport = (doc.getObject("XY_Plane"), [""])
sketch22.MapMode = "FlatFace"
add_polygon(sketch22, [(5.4, -10.8), (7, -12.9), (7.6, -12.4), (6.6, -10.1)])  # lines 0-3
sketch22.addConstraint(Sketcher.Constraint("Perpendicular", 0, 1))
sketch22.addConstraint(Sketcher.Constraint("Angle", 3, Q("-150 deg")))
sketch22.addConstraint(Sketcher.Constraint("Distance", 0, 2.584641))
sketch22.addConstraint(Sketcher.Constraint("Distance", 1, 0.753589))
sketch22.addConstraint(Sketcher.Constraint("Distance", 3, 1.393049))
sketch22.addConstraint(Sketcher.Constraint("DistanceY", 0, 2, -1, 1, 12.87284))
sketch22.addConstraint(Sketcher.Constraint("DistanceY", 1, 2, -1, 1, 12.418879))
sketch22.addConstraint(Sketcher.Constraint("DistanceX", -1, 1, 3, 2, 5.43676))
pad22 = body.newObject("PartDesign::Pad", "Pad021")
pad22.Profile = sketch22
pad22.setExpression("Length", "Params.pad22_length")

# Sketch on XY plane
sketch23 = body.newObject("Sketcher::SketchObject", "Sketch022")
sketch23.AttachmentSupport = (doc.getObject("XY_Plane"), [""])
sketch23.MapMode = "FlatFace"
add_polygon(sketch23, [(8, -9), (9.9, -10.8), (10.8, -9.9), (8.9, -8.2)])  # lines 0-3
sketch23.addConstraint(Sketcher.Constraint("Perpendicular", 0, 1))
sketch23.addConstraint(Sketcher.Constraint("Angle", 0, Q("-45 deg")))
sketch23.addConstraint(Sketcher.Constraint("Distance", 2, 2.556801))
sketch23.addConstraint(Sketcher.Constraint("Distance", 1, 1.282572))
sketch23.addConstraint(Sketcher.Constraint("DistanceX", -1, 1, 2, 2, 8.891258))
sketch23.addConstraint(Sketcher.Constraint("DistanceY", 2, 2, -1, 1, 8.207041))
sketch23.addConstraint(Sketcher.Constraint("DistanceX", 2, 2, 0, 2, 0.97186))
sketch23.addConstraint(Sketcher.Constraint("DistanceX", 3, 2, 2, 2, 0.841971))
pad23 = body.newObject("PartDesign::Pad", "Pad022")
pad23.Profile = sketch23
pad23.setExpression("Length", "Params.pad23_length")

# Sketch on XY plane
sketch24 = body.newObject("Sketcher::SketchObject", "Sketch023")
sketch24.AttachmentSupport = (doc.getObject("XY_Plane"), [""])
sketch24.MapMode = "FlatFace"
add_polygon(sketch24, [(10.1, -6.6), (12.5, -7.7), (12.7, -7.1), (10.8, -5.4)])  # lines 0-3
sketch24.addConstraint(Sketcher.Constraint("Perpendicular", 0, 1))
sketch24.addConstraint(Sketcher.Constraint("Angle", 3, Q("-120 deg")))
sketch24.addConstraint(Sketcher.Constraint("Distance", 0, 2.584641))
sketch24.addConstraint(Sketcher.Constraint("Distance", 1, 0.547441))
sketch24.addConstraint(Sketcher.Constraint("Distance", 3, 1.393049))
sketch24.addConstraint(Sketcher.Constraint("DistanceX", -1, 1, 0, 2, 12.493182))
sketch24.addConstraint(Sketcher.Constraint("DistanceY", 2, 2, -1, 1, 5.43676))
sketch24.addConstraint(Sketcher.Constraint("DistanceX", -1, 1, 3, 2, 10.113269))
pad24 = body.newObject("PartDesign::Pad", "Pad023")
pad24.Profile = sketch24
pad24.setExpression("Length", "Params.pad24_length")

# Sketch on XY plane
sketch25 = body.newObject("Sketcher::SketchObject", "Sketch024")
sketch25.AttachmentSupport = (doc.getObject("XY_Plane"), [""])
sketch25.MapMode = "FlatFace"
add_polygon(sketch25, [(11.5, -3.8), (14, -4.2), (14, -3.4), (11.8, -2.5)])  # lines 0-3
sketch25.addConstraint(Sketcher.Constraint("Vertical", 1))
sketch25.addConstraint(Sketcher.Constraint("Angle", 3, Q("-105 deg")))
sketch25.addConstraint(Sketcher.Constraint("DistanceX", 2, 2, 1, 2, 2.199202))
sketch25.addConstraint(Sketcher.Constraint("Distance", 0, 2.584641))
sketch25.addConstraint(Sketcher.Constraint("Distance", 2, 2.403611))
sketch25.addConstraint(Sketcher.Constraint("Distance", 3, 1.393049))
sketch25.addConstraint(Sketcher.Constraint("DistanceX", -1, 1, 3, 2, 11.488048))
sketch25.addConstraint(Sketcher.Constraint("DistanceY", 3, 2, -1, 1, 3.799309))
pad25 = body.newObject("PartDesign::Pad", "Pad024")
pad25.Profile = sketch25
pad25.setExpression("Length", "Params.pad25_length")

doc.recompute()
